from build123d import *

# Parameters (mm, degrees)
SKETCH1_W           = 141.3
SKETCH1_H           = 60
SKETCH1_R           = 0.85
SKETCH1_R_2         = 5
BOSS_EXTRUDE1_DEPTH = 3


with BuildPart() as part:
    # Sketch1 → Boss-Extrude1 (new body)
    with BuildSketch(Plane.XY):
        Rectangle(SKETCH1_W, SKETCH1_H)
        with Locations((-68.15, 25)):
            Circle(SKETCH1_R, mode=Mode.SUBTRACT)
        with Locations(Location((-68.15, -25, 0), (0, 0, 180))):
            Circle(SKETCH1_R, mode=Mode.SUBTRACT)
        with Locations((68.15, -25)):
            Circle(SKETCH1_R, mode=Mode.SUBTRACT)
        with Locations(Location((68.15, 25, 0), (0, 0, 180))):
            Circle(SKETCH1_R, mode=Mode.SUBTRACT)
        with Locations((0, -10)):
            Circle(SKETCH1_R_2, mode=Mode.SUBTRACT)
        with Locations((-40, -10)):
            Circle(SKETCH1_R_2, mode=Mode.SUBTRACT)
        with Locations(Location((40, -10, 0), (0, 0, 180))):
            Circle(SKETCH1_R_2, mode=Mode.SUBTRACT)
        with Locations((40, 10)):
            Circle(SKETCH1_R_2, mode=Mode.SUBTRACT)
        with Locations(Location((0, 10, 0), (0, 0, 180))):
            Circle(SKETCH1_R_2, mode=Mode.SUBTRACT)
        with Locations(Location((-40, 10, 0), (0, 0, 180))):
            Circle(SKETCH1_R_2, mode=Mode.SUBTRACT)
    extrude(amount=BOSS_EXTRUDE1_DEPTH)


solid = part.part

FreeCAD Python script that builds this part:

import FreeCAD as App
import Part
import Sketcher

doc = App.newDocument("Part")
params = doc.addObject("Spreadsheet::Sheet", "Params")
for row, (alias, value) in enumerate([
    ("sketch1_diameter", "10 mm"),
    ("sketch1_diameter2", "1.7 mm"),
    ("sketch1_height", "60 mm"),
    ("sketch1_width", "141.3 mm"),
    ("pad1_length", "3 mm"),
], start=1):
    params.set(f"A{row}", alias)
    params.set(f"B{row}", "=" + value)
    params.setAlias(f"B{row}", alias)

body = doc.addObject("PartDesign::Body", "Body")

# Sketch on XY plane
sketch1 = body.newObject("Sketcher::SketchObject", "Sketch")
sketch1.AttachmentSupport = (doc.getObject("XY_Plane"), [""])
sketch1.MapMode = "FlatFace"
sketch1.addGeometry([
    Part.LineSegment(App.Vector(-70.65, 30, 0), App.Vector(-70.65, -30, 0)),  # 0
    Part.LineSegment(App.Vector(-70.65, -30, 0), App.Vector(70.65, -30, 0)),  # 1
    Part.LineSegment(App.Vector(70.65, -30, 0), App.Vector(70.65, 30, 0)),  # 2
    Part.LineSegment(App.Vector(70.65, 30, 0), App.Vector(-70.65, 30, 0)),  # 3
    Part.Circle(App.Vector(-68.15, -25, 0), App.Vector(0, 0, 1), 0.85),  # 4
    Part.Circle(App.Vector(-40, -10, 0), App.Vector(0, 0, 1), 5),  # 5
    Part.Circle(App.Vector(68.15, -25, 0), App.Vector(0, 0, 1), 0.85),  # 6
    Part.Circle(App.Vector(0, -10, 0), App.Vector(0, 0, 1), 5),  # 7
    Part.Circle(App.Vector(40, -10, 0), App.Vector(0, 0, 1), 5),  # 8
    Part.Circle(App.Vector(-40, 10, 0), App.Vector(0, 0, 1), 5),  # 9
    Part.Circle(App.Vector(-68.15, 25, 0), App.Vector(0, 0, 1), 0.85),  # 10
    Part.Circle(App.Vector(0, 10, 0), App.Vector(0, 0, 1), 5),  # 11
    Part.Circle(App.Vector(40, 10, 0), App.Vector(0, 0, 1), 5),  # 12
    Part.Circle(App.Vector(68.15, 25, 0), App.Vector(0, 0, 1), 0.85),  # 13
], False)
sketch1.addConstraint([
    Sketcher.Constraint("Coincident", 0, 2, 1, 1),
    Sketcher.Constraint("Coincident", 1, 2, 2, 1),
    Sketcher.Constraint("Coincident", 2, 2, 3, 1),
    Sketcher.Constraint("Coincident", 3, 2, 0, 1),
    Sketcher.Constraint("Vertical", 0),
    Sketcher.Constraint("Horizontal", 1),
    Sketcher.Constraint("Vertical", 2),
    Sketcher.Constraint("Horizontal", 3),
    Sketcher.Constraint("Equal", 4, 6),
    Sketcher.Constraint("Equal", 5, 7),
    Sketcher.Constraint("Equal", 7, 8),
    Sketcher.Constraint("Equal", 8, 9),
    Sketcher.Constraint("Equal", 6, 10),
    Sketcher.Constraint("Equal", 9, 11),
    Sketcher.Constraint("Equal", 11, 12),
    Sketcher.Constraint("Equal", 10, 13),
    Sketcher.Constraint("Symmetric", 8, 3, 9, 3, -1, 1),
    Sketcher.Constraint("Symmetric", 6, 3, 10, 3, -1, 1),
    Sketcher.Constraint("Symmetric", 7, 3, 11, 3, -1, 1),
    Sketcher.Constraint("Symmetric", 5, 3, 12, 3, -1, 1),
    Sketcher.Constraint("Symmetric", 4, 3, 13, 3, -1, 1),
    Sketcher.Constraint("Symmetric", 0, 2, 2, 2, -1, 1),
    Sketcher.Constraint("Symmetric", 4, 3, 6, 3, -2),
    Sketcher.Constraint("Symmetric", 5, 3, 8, 3, -2),
    Sketcher.Constraint("PointOnObject", 7, 3, -2),
    Sketcher.Constraint("Horizontal", 5, 3, 7, 3),
    Sketcher.Constraint("Diameter", 5, 10.0),
    Sketcher.Constraint("Diameter", 4, 1.7),
    Sketcher.Constraint("DistanceY", 0, 2, 0, 1, 60.0),
    Sketcher.Constraint("DistanceX", 1, 1, 1, 2, 141.3),
    Sketcher.Constraint("DistanceY", 4, 3, -1, 1, 25.0),
    Sketcher.Constraint("DistanceX", 5, 3, -1, 1, 40.0),
    Sketcher.Constraint("DistanceY", 5, 3, -1, 1, 10.0),
    Sketcher.Constraint("DistanceX", 4, 3, 6, 3, 136.3),
])
sketch1.setExpression("Constraints[26]", "Params.sketch1_diameter")
sketch1.setExpression("Constraints[27]", "Params.sketch1_diameter2")
sketch1.setExpression("Constraints[28]", "Params.sketch1_height")
sketch1.setExpression("Constraints[29]", "Params.sketch1_width")
pad1 = body.newObject("PartDesign::Pad", "Pad")
pad1.Profile = sketch1
pad1.setExpression("Length", "Params.pad1_length")

doc.recompute()
